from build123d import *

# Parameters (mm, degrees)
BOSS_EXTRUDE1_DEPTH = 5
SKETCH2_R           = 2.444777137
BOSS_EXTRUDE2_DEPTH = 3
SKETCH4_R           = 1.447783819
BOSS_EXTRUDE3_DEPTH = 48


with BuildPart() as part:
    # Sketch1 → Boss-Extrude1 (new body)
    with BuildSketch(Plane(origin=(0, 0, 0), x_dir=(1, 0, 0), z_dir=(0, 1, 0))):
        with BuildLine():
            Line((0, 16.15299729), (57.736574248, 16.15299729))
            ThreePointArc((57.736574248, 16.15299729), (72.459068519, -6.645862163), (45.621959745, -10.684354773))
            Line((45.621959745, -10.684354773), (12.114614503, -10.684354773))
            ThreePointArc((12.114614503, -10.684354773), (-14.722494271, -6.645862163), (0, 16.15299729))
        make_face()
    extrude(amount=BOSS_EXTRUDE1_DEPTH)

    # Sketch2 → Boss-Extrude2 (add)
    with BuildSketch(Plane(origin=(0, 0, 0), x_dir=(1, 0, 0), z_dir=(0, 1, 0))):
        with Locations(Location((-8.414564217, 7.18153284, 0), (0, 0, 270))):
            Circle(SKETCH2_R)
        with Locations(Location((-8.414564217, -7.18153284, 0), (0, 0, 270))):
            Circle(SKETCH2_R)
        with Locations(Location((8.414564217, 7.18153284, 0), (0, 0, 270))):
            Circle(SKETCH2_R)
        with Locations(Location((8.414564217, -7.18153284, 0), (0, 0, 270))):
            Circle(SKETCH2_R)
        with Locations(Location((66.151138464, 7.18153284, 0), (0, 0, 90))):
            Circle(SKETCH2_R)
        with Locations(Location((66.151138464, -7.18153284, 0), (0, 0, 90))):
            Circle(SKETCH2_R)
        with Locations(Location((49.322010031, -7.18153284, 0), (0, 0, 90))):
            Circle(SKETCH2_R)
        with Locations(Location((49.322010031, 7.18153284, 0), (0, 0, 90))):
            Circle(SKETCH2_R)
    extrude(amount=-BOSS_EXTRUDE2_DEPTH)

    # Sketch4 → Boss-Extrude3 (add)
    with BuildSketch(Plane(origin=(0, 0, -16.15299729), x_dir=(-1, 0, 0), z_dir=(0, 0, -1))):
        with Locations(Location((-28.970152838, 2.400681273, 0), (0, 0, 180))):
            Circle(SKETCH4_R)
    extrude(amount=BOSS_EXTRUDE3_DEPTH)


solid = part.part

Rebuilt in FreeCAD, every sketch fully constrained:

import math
import FreeCAD as App
import Part
import Sketcher
Q = App.Units.Quantity

doc = App.newDocument("Part")
body = doc.addObject("PartDesign::Body", "Body")

# Sketch on XZ plane
sketch1 = body.newObject("Sketcher::SketchObject", "Sketch")
sketch1.AttachmentSupport = (doc.getObject("XZ_Plane"), [""])
sketch1.MapMode = "FlatFace"
sketch1.addGeometry([
    Part.LineSegment(App.Vector(58, -16, 0), App.Vector(0, -16, 0)),
    Part.ArcOfCircle(Part.Circle(App.Vector(0, 0, 0), App.Vector(0, 0, 1), 16), math.radians(41), math.radians(270)),
    Part.LineSegment(App.Vector(12, 11, 0), App.Vector(46, 11, 0)),
    Part.ArcOfCircle(Part.Circle(App.Vector(58, 0, 0), App.Vector(0, 0, 1), 16), math.radians(-90), math.radians(139)),
], False)
sketch1.addConstraint([
    Sketcher.Constraint("Tangent", 0, 2, 1, 2),
    Sketcher.Constraint("Coincident", 1, 1, 2, 1),
    Sketcher.Constraint("Coincident", 2, 2, 3, 2),
    Sketcher.Constraint("Tangent", 3, 1, 0, 1),
    Sketcher.Constraint("Horizontal", 0),
    Sketcher.Constraint("Horizontal", 2),
    Sketcher.Constraint("Coincident", 1, 3, -1, 1),
    Sketcher.Constraint("Equal", 1, 3),
    Sketcher.Constraint("Radius", 1, Q("16.152997 mm")),
    Sketcher.Constraint("DistanceX", 0, 2, 0, 1, Q("57.736574 mm")),
    Sketcher.Constraint("DistanceX", 2, 1, 2, 2, Q("33.507345 mm")),
])
pad1 = body.newObject("PartDesign::Pad", "Pad")
pad1.Profile = sketch1
pad1.Length = 5
pad1.Reversed = True

# Sketch on XZ plane
sketch2 = body.newObject("Sketcher::SketchObject", "Sketch001")
sketch2.AttachmentSupport = (doc.getObject("XZ_Plane"), [""])
sketch2.MapMode = "FlatFace"
sketch2.addGeometry([
    Part.Circle(App.Vector(-8.4, -7.2, 0), App.Vector(0, 0, 1), 2.4),  # 0
    Part.Circle(App.Vector(-8.4, 7.2, 0), App.Vector(0, 0, 1), 2.4),  # 1
    Part.Circle(App.Vector(8.4, -7.2, 0), App.Vector(0, 0, 1), 2.4),  # 2
    Part.Circle(App.Vector(8.4, 7.2, 0), App.Vector(0, 0, 1), 2.4),  # 3
    Part.Circle(App.Vector(66.2, -7.2, 0), App.Vector(0, 0, 1), 2.4),  # 4
    Part.Circle(App.Vector(66.2, 7.2, 0), App.Vector(0, 0, 1), 2.4),  # 5
    Part.Circle(App.Vector(49.3, 7.2, 0), App.Vector(0, 0, 1), 2.4),  # 6
    Part.Circle(App.Vector(49.3, -7.2, 0), App.Vector(0, 0, 1), 2.4),  # 7
], False)
sketch2.addConstraint([
    Sketcher.Constraint("Equal", 0, 1),
    Sketcher.Constraint("Equal", 1, 2),
    Sketcher.Constraint("Equal", 2, 3),
    Sketcher.Constraint("Equal", 3, 4),
    Sketcher.Constraint("Equal", 4, 5),
    Sketcher.Constraint("Equal", 5, 6),
    Sketcher.Constraint("Equal", 6, 7),
    Sketcher.Constraint("Symmetric", 1, 3, 2, 3, -1, 1),
    Sketcher.Constraint("Symmetric", 0, 3, 3, 3, -1, 1),
    Sketcher.Constraint("Symmetric", 0, 3, 2, 3, -2),
    Sketcher.Constraint("Symmetric", 4, 3, 5, 3, -1),
    Sketcher.Constraint("Symmetric", 6, 3, 7, 3, -1),
    Sketcher.Constraint("Horizontal", 2, 3, 4, 3),
    Sketcher.Constraint("Horizontal", 5, 3, 6, 3),
    Sketcher.Constraint("Diameter", 0, Q("4.889554 mm")),
    Sketcher.Constraint("DistanceX", -1, 1, 4, 3, Q("66.151138 mm")),
    Sketcher.Constraint("DistanceX", -1, 1, 6, 3, Q("49.32201 mm")),
    Sketcher.Constraint("DistanceX", 0, 3, 2, 3, Q("16.829128 mm")),
    Sketcher.Constraint("DistanceY", 0, 3, -1, 1, Q("7.181533 mm")),
])
pad2 = body.newObject("PartDesign::Pad", "Pad001")
pad2.Profile = sketch2
pad2.Length = 3

# Sketch on XY plane
sketch3 = body.newObject("Sketcher::SketchObject", "Sketch002")
sketch3.AttachmentSupport = (doc.getObject("XY_Plane"), [""])
sketch3.MapMode = "FlatFace"
sketch3.AttachmentOffset = App.Placement(App.Vector(0, 0, -16.152997), App.Rotation())
sketch3.addGeometry(Part.Circle(App.Vector(29, 2.4, 0), App.Vector(0, 0, 1), 1.4), False)
sketch3.addConstraint([
    Sketcher.Constraint("Diameter", 0, Q("2.895568 mm")),
    Sketcher.Constraint("DistanceY", -1, 1, 0, 3, Q("2.400681 mm")),
    Sketcher.Constraint("DistanceX", -1, 1, 0, 3, Q("28.970153 mm")),
])
pad3 = body.newObject("PartDesign::Pad", "Pad002")
pad3.Profile = sketch3
pad3.Length = 48
pad3.Reversed = True

doc.recompute()
